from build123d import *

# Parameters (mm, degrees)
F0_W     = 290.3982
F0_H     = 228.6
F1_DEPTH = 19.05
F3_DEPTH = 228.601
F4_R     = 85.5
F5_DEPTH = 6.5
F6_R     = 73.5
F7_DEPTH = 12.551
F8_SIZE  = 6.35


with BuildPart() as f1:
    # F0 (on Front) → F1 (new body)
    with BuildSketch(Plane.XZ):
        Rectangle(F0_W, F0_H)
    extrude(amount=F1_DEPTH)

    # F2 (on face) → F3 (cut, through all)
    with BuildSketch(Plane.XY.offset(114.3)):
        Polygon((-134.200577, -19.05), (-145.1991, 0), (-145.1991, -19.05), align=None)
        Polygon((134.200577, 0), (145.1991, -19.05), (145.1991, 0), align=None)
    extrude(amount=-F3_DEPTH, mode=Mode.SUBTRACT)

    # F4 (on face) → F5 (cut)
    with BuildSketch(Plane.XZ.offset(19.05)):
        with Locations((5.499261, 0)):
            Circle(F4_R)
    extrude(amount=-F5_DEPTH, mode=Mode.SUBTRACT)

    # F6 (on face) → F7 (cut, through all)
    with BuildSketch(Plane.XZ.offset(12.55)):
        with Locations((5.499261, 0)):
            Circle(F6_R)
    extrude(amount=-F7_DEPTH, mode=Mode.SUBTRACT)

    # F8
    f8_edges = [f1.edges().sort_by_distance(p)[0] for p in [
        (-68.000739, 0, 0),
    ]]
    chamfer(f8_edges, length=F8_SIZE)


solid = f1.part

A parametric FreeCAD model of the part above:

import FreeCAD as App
import Part
import Sketcher

V = App.Vector
Q = App.Units.Quantity


def edges_at(feature, points):
    """Names of the edges that pass closest to the given points."""
    edges = feature.Shape.Edges
    near = lambda p: min(range(len(edges)), key=lambda i: edges[i].distToShape(Part.Vertex(*p))[0])
    return sorted({f"Edge{near(p) + 1}" for p in points})


def add_polygon(sketch, points):
    """Adds a closed chain of lines whose ends are joined by coincident constraints."""
    first, n = sketch.GeometryCount, len(points)
    for a, b in zip(points, points[1:] + points[:1]):
        sketch.addGeometry(Part.LineSegment(App.Vector(*a, 0), App.Vector(*b, 0)), False)
    for i in range(n):
        sketch.addConstraint(Sketcher.Constraint("Coincident", first + i, 2, first + (i + 1) % n, 1))

doc = App.newDocument("Part")
body = doc.addObject("PartDesign::Body", "Body")

# Sketch on XZ plane
sketch1 = body.newObject("Sketcher::SketchObject", "Sketch")
sketch1.AttachmentSupport = (doc.getObject("XZ_Plane"), [""])
sketch1.MapMode = "FlatFace"
add_polygon(sketch1, [(-145, 114), (-145, -114), (145, -114), (145, 114)])  # lines 0-3
sketch1.addConstraint([
    Sketcher.Constraint("Vertical", 0),
    Sketcher.Constraint("Horizontal", 1),
    Sketcher.Constraint("Vertical", 2),
    Sketcher.Constraint("Horizontal", 3),
    Sketcher.Constraint("Symmetric", 0, 2, 2, 2, -1, 1),
    Sketcher.Constraint("DistanceY", 0, 2, 0, 1, Q("9 in")),
    Sketcher.Constraint("DistanceX", 1, 1, 1, 2, Q("11.433 in")),
])
pad1 = body.newObject("PartDesign::Pad", "Pad")
pad1.Profile = sketch1
pad1.Length = Q("0.75 in")

# Sketch on XY plane
sketch2 = body.newObject("Sketcher::SketchObject", "Sketch001")
sketch2.AttachmentSupport = (doc.getObject("XY_Plane"), [""])
sketch2.MapMode = "FlatFace"
sketch2.AttachmentOffset = App.Placement(V(0, 0, 4.5 * 25.4), App.Rotation())
add_polygon(sketch2, [(-134, -19), (-145, 0), (-145, -19)])  # lines 0-2
add_polygon(sketch2, [(134, 0), (145, -19), (145, 0)])  # lines 3-5
sketch2.addConstraint([
    Sketcher.Constraint("Vertical", 1),
    Sketcher.Constraint("Horizontal", 2),
    Sketcher.Constraint("Vertical", 4),
    Sketcher.Constraint("Horizontal", 5),
    Sketcher.Constraint("Symmetric", 0, 2, 4, 2, -1, 1),
    Sketcher.Constraint("PointOnObject", 0, 2, -1),
    Sketcher.Constraint("Parallel", 0, 3),
    Sketcher.Constraint("Horizontal", 2, 2, 3, 2),
    Sketcher.Constraint("Angle", 0, Q("120.000001 deg")),
    Sketcher.Constraint("DistanceY", 1, 2, 1, 1, Q("0.75 in")),
    Sketcher.Constraint("DistanceX", 1, 2, 3, 2, Q("11.433 in")),
])
pocket1 = body.newObject("PartDesign::Pocket", "Pocket")
pocket1.Profile = sketch2
pocket1.Type = "ThroughAll"

# Sketch on XZ plane
sketch3 = body.newObject("Sketcher::SketchObject", "Sketch002")
sketch3.AttachmentSupport = (doc.getObject("XZ_Plane"), [""])
sketch3.MapMode = "FlatFace"
sketch3.AttachmentOffset = App.Placement(V(0, 0, 0.75 * 25.4), App.Rotation())
sketch3.addGeometry(Part.Circle(V(5, 0, 0), V(0, 0, 1), 86), False)
sketch3.addConstraint([
    Sketcher.Constraint("PointOnObject", 0, 3, -1),
    Sketcher.Constraint("Diameter", 0, 171.0),
    Sketcher.Constraint("DistanceX", -1, 1, 0, 3, 5.499261),
])
pocket2 = body.newObject("PartDesign::Pocket", "Pocket001")
pocket2.Profile = sketch3
pocket2.Length = 6.5

# Sketch on XZ plane
sketch4 = body.newObject("Sketcher::SketchObject", "Sketch003")
sketch4.AttachmentSupport = (doc.getObject("XZ_Plane"), [""])
sketch4.MapMode = "FlatFace"
sketch4.AttachmentOffset = App.Placement(V(0, 0, 12.55), App.Rotation())
sketch4.addGeometry(Part.Circle(V(5, 0, 0), V(0, 0, 1), 74), False)
sketch4.addConstraint([
    Sketcher.Constraint("PointOnObject", 0, 3, -1),
    Sketcher.Constraint("Diameter", 0, 147.0),
    Sketcher.Constraint("DistanceX", -1, 1, 0, 3, 5.499261),
])
pocket3 = body.newObject("PartDesign::Pocket", "Pocket002")
pocket3.Profile = sketch4
pocket3.Type = "ThroughAll"
doc.recompute()

chamfer = body.newObject("PartDesign::Chamfer", "Chamfer")
chamfer.Base = (pocket3, edges_at(pocket3, [(-68.001, 0, 0)]))
chamfer.Size = Q("0.25 in")

doc.recompute()
